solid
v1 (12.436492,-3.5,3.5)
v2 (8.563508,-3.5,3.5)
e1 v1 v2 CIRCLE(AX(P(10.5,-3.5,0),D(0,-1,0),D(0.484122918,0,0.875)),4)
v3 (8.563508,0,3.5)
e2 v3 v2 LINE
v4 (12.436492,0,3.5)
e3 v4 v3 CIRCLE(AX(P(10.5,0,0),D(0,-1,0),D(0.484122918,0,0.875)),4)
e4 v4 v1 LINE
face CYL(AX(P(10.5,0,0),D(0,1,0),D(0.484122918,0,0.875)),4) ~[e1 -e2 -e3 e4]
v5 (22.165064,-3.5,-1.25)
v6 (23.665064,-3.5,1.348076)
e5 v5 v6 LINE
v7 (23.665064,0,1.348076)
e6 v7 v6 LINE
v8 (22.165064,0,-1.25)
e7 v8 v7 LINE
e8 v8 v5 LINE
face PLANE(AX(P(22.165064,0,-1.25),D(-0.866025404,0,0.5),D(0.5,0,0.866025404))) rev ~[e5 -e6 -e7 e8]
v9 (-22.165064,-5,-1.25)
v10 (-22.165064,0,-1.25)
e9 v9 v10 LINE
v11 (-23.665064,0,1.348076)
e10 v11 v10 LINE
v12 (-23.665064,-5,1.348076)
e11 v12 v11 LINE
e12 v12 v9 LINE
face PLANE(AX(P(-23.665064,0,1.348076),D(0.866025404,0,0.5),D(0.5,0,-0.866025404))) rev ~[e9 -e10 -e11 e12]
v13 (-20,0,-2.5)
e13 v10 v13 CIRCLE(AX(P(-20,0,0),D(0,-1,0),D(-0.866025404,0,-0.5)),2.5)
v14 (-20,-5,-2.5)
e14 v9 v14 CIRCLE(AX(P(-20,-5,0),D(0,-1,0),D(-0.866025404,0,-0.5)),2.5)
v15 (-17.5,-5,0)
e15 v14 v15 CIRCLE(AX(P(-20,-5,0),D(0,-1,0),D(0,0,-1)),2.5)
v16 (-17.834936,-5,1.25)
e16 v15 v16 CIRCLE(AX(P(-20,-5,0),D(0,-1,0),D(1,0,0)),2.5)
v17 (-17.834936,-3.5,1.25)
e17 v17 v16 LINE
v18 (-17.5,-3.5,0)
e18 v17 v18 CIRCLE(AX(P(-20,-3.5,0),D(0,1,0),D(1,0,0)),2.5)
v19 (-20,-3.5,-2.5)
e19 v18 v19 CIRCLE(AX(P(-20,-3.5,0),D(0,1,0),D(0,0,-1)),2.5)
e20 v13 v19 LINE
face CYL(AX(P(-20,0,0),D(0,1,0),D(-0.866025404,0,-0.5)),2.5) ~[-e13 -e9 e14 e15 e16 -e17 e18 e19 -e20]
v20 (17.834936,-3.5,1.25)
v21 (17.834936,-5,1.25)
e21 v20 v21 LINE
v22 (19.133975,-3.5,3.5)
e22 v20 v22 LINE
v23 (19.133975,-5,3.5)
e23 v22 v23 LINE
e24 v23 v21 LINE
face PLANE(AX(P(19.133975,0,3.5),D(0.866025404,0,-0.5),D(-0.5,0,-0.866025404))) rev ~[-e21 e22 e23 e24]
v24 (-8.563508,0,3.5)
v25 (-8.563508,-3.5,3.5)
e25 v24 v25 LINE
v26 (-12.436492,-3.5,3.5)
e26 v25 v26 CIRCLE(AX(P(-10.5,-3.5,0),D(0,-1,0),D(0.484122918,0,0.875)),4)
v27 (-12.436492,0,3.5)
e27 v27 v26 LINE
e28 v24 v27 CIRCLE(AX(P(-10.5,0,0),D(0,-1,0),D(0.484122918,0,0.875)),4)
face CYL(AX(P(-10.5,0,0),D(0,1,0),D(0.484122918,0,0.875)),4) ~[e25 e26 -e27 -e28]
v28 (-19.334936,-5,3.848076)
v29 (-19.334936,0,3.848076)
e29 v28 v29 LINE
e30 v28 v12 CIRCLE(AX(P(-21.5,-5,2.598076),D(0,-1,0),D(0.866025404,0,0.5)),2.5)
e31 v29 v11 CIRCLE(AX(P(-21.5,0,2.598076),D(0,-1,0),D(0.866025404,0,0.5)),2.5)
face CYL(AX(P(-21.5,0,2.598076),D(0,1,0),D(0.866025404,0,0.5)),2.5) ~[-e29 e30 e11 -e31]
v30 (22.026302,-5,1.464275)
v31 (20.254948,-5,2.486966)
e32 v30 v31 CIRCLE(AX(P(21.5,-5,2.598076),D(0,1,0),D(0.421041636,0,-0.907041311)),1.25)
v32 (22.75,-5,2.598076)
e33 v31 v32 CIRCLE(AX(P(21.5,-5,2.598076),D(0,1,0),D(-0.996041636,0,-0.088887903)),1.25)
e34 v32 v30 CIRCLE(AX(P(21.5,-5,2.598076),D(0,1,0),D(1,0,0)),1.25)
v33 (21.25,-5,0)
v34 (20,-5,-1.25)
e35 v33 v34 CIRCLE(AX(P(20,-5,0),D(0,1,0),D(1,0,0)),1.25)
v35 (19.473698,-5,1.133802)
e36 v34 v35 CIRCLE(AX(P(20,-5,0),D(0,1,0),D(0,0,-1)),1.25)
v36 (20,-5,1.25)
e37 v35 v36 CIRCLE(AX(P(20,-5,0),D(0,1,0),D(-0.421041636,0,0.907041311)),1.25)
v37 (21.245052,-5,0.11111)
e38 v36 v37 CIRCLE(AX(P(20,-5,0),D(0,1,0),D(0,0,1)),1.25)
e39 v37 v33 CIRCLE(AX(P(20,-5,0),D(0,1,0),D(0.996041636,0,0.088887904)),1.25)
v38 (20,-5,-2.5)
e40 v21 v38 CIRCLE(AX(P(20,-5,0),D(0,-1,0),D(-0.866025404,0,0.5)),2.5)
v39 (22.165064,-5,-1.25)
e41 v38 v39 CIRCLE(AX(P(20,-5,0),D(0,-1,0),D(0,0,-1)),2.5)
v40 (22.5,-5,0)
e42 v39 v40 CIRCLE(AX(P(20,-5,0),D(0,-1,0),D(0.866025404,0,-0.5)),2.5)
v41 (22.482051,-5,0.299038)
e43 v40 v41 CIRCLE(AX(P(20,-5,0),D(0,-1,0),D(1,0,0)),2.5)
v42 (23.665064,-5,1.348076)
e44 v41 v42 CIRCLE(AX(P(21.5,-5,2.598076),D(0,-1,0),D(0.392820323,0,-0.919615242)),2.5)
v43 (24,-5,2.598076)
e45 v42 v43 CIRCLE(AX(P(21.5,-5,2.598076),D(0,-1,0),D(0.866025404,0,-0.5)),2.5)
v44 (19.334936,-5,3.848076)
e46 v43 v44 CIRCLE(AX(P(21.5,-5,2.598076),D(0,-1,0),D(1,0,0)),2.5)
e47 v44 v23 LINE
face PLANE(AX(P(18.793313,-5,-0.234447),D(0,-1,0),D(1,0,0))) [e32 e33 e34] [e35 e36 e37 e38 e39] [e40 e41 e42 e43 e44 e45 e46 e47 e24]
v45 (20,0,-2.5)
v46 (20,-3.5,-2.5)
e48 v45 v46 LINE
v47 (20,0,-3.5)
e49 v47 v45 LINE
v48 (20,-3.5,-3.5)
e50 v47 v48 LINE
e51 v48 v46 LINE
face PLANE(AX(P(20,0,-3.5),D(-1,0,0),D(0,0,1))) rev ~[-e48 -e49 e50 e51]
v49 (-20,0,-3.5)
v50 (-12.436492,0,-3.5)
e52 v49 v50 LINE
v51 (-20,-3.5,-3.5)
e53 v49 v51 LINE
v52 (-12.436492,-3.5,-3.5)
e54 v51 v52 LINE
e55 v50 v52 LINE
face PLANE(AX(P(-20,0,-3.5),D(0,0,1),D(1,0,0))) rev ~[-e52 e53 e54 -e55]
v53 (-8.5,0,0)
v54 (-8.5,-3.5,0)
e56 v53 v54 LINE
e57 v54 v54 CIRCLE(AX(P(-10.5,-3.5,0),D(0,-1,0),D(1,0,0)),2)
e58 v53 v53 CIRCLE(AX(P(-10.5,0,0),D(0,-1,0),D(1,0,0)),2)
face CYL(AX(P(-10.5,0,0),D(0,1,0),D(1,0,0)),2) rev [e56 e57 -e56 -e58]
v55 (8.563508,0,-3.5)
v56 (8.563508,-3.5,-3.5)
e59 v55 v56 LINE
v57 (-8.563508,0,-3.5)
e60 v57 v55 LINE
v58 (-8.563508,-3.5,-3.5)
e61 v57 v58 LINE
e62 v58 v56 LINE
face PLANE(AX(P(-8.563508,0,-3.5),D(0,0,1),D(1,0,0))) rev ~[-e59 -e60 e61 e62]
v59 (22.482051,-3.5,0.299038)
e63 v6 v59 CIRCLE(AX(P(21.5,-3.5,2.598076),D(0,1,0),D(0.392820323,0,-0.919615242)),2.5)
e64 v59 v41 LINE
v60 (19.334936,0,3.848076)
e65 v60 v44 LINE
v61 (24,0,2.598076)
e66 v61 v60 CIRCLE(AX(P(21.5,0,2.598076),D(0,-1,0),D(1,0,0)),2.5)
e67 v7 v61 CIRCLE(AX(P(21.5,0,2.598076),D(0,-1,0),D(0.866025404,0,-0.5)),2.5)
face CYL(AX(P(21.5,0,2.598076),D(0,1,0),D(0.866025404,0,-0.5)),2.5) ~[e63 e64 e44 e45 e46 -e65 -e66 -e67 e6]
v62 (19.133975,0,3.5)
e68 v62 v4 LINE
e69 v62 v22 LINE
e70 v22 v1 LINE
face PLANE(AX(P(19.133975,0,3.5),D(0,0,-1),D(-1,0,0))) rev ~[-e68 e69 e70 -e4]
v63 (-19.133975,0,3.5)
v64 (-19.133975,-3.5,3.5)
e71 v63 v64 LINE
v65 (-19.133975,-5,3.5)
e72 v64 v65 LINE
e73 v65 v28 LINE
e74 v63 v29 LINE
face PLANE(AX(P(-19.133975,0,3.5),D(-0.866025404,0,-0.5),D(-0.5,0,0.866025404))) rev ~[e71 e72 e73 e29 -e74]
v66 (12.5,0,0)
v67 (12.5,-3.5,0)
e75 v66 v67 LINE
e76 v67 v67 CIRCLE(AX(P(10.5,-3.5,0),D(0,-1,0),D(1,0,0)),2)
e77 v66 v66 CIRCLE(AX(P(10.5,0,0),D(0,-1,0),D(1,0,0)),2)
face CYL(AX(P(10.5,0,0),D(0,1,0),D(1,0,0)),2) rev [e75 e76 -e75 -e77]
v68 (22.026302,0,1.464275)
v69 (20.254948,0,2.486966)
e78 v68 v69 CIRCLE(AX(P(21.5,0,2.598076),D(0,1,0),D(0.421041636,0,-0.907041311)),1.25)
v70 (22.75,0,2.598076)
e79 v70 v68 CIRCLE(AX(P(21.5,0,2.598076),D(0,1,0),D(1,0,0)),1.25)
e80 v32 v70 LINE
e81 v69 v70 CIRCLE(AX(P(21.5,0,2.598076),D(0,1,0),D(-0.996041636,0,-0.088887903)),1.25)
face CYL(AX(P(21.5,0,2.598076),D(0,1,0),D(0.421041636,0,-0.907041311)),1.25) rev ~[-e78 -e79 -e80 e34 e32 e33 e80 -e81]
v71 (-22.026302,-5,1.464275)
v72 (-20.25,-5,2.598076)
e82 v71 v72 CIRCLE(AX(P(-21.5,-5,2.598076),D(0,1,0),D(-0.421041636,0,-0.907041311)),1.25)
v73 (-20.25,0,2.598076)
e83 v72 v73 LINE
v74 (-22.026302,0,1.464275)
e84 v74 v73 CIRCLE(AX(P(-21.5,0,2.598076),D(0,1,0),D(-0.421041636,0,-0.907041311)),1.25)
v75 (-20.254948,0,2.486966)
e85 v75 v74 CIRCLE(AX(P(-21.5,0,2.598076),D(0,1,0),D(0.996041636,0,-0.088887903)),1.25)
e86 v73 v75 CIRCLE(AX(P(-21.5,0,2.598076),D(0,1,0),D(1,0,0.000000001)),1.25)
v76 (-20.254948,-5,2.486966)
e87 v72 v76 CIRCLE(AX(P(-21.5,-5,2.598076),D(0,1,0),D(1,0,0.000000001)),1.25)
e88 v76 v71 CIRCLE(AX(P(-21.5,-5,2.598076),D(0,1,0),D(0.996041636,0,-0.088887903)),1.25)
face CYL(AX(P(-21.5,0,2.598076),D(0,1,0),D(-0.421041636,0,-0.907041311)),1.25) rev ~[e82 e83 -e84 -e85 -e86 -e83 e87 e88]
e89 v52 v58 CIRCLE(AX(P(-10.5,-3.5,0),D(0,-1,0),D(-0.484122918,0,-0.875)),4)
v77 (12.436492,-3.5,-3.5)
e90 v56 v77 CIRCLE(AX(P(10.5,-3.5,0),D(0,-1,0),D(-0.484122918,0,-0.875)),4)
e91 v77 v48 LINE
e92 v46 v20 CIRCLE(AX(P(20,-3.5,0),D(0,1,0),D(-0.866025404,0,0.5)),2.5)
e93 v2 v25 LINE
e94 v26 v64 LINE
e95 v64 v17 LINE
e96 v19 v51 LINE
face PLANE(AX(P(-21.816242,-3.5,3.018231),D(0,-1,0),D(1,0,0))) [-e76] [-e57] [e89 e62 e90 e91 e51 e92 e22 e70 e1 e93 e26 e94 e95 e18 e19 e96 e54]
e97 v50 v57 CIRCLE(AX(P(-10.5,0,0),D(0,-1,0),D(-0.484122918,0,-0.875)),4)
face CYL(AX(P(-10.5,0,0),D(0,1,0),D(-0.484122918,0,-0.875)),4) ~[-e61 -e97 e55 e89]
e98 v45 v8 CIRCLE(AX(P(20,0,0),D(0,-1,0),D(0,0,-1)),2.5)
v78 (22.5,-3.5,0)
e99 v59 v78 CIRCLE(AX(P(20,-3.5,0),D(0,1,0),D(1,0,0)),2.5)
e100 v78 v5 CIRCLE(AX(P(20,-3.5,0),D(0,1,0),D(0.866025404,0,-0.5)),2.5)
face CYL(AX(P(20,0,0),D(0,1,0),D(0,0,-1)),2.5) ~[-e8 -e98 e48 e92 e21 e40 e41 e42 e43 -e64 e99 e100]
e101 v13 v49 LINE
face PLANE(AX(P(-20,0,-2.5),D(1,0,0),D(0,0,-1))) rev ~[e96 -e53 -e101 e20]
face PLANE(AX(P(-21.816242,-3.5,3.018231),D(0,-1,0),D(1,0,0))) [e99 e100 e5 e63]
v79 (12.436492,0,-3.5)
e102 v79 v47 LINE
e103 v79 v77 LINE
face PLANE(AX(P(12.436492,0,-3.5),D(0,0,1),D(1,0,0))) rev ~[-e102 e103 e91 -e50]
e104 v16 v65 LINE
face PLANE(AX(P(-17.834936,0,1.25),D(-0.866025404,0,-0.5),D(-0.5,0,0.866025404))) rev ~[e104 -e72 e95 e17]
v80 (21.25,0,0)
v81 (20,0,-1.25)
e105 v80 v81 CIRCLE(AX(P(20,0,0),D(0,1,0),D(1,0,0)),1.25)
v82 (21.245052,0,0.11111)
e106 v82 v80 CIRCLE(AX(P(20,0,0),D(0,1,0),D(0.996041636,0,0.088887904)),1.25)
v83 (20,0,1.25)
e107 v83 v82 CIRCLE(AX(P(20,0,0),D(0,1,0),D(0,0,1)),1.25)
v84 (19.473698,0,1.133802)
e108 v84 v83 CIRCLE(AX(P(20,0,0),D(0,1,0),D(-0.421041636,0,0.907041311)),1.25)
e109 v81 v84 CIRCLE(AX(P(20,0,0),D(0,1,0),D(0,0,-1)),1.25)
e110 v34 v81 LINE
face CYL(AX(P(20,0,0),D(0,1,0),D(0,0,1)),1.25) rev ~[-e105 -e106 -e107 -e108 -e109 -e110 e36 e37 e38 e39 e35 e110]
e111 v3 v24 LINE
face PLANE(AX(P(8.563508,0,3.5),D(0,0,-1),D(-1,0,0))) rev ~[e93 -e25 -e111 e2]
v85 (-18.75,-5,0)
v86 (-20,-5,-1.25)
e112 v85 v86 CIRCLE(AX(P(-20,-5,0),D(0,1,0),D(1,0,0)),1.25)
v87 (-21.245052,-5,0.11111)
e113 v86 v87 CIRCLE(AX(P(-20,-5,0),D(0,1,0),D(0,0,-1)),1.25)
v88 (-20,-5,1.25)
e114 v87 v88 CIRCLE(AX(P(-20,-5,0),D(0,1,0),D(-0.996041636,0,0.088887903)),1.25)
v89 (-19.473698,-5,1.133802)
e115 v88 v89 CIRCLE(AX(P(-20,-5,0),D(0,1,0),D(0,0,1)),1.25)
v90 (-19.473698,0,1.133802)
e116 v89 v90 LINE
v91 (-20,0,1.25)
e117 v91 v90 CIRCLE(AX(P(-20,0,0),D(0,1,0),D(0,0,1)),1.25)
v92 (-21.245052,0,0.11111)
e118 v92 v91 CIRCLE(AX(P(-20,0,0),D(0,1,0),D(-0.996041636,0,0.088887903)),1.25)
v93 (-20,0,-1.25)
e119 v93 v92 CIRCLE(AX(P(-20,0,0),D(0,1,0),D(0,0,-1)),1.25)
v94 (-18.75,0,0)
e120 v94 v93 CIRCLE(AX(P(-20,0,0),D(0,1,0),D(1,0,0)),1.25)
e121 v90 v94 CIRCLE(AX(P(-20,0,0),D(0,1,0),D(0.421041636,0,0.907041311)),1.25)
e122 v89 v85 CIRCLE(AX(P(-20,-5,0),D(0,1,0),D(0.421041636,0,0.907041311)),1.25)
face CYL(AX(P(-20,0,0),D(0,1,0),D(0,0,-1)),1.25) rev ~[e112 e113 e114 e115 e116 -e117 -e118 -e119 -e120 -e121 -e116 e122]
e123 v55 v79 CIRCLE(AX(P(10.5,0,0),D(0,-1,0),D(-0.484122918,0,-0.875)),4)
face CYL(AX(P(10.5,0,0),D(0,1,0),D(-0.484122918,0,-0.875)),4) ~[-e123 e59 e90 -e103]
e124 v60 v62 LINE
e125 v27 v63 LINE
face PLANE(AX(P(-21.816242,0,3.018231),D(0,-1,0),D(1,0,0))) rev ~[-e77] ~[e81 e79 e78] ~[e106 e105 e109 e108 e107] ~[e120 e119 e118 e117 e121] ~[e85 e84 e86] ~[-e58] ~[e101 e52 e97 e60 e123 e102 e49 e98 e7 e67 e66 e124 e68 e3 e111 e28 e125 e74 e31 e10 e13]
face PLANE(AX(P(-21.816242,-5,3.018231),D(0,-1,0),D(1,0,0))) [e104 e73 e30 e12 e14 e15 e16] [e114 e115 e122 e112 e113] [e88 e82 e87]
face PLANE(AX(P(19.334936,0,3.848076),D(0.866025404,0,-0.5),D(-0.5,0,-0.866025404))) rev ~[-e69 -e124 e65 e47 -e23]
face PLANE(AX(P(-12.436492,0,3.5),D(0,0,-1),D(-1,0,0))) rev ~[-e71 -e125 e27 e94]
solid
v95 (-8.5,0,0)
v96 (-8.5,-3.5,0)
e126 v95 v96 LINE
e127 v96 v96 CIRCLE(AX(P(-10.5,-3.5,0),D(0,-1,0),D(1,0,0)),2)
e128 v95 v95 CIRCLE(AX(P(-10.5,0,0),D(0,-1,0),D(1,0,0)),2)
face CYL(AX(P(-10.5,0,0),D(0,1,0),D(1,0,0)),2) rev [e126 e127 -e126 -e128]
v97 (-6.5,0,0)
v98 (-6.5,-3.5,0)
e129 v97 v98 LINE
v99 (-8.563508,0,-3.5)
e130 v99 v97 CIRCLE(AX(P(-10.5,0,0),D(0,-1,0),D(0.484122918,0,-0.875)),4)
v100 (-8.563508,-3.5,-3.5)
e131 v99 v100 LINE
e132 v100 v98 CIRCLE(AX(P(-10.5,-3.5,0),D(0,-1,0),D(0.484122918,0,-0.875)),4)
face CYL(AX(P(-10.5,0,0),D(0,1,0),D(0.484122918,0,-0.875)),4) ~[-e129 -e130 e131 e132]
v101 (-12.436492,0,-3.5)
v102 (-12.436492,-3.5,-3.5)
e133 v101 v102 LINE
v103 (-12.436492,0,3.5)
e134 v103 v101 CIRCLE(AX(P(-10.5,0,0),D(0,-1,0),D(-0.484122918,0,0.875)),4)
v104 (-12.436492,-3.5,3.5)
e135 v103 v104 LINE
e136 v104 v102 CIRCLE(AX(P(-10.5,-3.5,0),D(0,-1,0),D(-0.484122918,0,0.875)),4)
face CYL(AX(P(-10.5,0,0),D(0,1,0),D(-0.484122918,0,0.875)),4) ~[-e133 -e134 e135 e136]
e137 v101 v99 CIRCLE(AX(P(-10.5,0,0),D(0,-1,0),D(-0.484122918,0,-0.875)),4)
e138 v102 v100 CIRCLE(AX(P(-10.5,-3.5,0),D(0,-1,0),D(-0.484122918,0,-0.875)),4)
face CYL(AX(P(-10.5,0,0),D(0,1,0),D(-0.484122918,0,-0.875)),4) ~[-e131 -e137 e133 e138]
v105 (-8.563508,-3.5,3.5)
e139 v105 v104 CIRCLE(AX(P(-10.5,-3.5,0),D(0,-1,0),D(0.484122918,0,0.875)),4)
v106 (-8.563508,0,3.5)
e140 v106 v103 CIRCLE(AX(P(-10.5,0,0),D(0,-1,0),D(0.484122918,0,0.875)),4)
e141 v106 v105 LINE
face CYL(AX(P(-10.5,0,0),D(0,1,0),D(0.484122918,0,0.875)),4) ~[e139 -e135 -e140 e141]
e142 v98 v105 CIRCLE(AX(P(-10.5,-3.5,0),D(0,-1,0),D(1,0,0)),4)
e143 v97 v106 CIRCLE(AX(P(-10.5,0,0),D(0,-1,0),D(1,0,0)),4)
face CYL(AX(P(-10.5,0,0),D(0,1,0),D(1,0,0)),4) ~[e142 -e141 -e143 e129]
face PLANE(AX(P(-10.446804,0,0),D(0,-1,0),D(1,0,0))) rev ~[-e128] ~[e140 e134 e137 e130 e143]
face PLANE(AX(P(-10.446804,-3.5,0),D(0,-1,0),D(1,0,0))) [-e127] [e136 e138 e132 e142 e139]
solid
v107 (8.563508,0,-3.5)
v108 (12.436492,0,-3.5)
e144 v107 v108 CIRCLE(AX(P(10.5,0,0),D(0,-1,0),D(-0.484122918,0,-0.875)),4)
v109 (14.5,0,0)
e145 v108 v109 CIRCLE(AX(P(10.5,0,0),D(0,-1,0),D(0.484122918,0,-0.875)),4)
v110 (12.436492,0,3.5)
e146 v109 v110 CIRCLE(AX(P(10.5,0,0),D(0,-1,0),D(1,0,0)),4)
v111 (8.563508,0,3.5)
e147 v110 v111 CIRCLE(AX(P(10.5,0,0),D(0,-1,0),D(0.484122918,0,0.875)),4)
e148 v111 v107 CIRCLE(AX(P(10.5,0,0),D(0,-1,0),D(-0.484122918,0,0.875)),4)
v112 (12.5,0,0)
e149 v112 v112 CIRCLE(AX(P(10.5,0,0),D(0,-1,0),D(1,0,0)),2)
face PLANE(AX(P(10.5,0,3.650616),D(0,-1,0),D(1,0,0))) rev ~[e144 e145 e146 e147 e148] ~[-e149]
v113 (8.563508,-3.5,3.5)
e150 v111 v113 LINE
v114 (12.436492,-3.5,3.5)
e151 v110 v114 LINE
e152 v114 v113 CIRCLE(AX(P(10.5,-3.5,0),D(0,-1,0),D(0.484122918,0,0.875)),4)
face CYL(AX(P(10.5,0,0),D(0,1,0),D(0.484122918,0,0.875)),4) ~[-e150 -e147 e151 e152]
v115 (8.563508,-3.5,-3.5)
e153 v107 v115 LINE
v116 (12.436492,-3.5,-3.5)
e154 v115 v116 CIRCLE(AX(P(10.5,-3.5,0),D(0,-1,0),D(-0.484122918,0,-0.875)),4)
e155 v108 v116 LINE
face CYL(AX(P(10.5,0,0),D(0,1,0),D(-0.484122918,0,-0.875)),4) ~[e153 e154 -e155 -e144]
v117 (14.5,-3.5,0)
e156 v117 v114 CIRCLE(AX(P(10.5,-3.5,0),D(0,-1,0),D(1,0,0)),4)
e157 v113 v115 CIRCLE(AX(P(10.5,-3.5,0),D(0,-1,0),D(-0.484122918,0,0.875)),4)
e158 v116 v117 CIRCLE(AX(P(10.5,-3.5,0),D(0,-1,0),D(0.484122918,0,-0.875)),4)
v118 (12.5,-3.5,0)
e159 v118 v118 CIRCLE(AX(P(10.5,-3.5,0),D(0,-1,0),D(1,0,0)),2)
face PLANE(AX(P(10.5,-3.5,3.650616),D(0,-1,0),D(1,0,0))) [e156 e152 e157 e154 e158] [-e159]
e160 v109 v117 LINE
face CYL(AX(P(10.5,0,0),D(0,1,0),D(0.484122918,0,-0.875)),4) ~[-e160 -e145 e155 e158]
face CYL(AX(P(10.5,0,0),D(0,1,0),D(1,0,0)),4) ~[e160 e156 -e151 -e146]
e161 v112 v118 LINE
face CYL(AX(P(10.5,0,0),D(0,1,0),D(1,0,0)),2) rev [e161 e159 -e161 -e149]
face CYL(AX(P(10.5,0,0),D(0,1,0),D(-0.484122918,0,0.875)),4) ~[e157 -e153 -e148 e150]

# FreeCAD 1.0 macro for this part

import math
import FreeCAD as App
import Part
import Sketcher
from FreeCAD import Vector
Q = App.Units.Quantity

doc = App.newDocument("Part")
body = doc.addObject("PartDesign::Body", "Body")

sketch1 = body.newObject("Sketcher::SketchObject", "Sketch")
sketch1.AttachmentSupport = (doc.getObject("XZ_Plane"), [""])
sketch1.MapMode = "FlatFace"
sketch1.addGeometry([
    Part.ArcOfCircle(Part.Circle(Vector(21.5, 2.6, 0), Vector(0, 0, 1), 2.5), math.radians(0), math.radians(150)),
    Part.LineSegment(Vector(19.33, 3.85, 0), Vector(19.13, 3.5, 0)),
    Part.LineSegment(Vector(19.13, 3.5, 0), Vector(12.44, 3.5, 0)),
    Part.ArcOfCircle(Part.Circle(Vector(10.5, 0, 0), Vector(0, 0, 1), 4), math.radians(61), math.radians(119)),
    Part.LineSegment(Vector(8.56, 3.5, 0), Vector(-8.56, 3.5, 0)),
    Part.ArcOfCircle(Part.Circle(Vector(-10.5, 0, 0), Vector(0, 0, 1), 4), math.radians(61), math.radians(119)),
    Part.LineSegment(Vector(-12.44, 3.5, 0), Vector(-19.13, 3.5, 0)),
    Part.LineSegment(Vector(-19.13, 3.5, 0), Vector(-19.33, 3.85, 0)),
    Part.ArcOfCircle(Part.Circle(Vector(-21.5, 2.6, 0), Vector(0, 0, 1), 2.5), math.radians(30), math.radians(210)),
    Part.LineSegment(Vector(-23.67, 1.35, 0), Vector(-22.17, -1.25, 0)),
    Part.ArcOfCircle(Part.Circle(Vector(-20, 0, 0), Vector(0, 0, 1), 2.5), math.radians(-150), math.radians(-90)),
    Part.LineSegment(Vector(-20, -2.5, 0), Vector(-20, -3.5, 0)),
    Part.LineSegment(Vector(-20, -3.5, 0), Vector(-12.44, -3.5, 0)),
    Part.ArcOfCircle(Part.Circle(Vector(-10.5, 0, 0), Vector(0, 0, 1), 4), math.radians(-119), math.radians(-61)),
    Part.LineSegment(Vector(-8.56, -3.5, 0), Vector(8.56, -3.5, 0)),
    Part.ArcOfCircle(Part.Circle(Vector(10.5, 0, 0), Vector(0, 0, 1), 4), math.radians(-119), math.radians(-61)),
    Part.LineSegment(Vector(12.44, -3.5, 0), Vector(20, -3.5, 0)),
    Part.LineSegment(Vector(20, -3.5, 0), Vector(20, -2.5, 0)),
    Part.ArcOfCircle(Part.Circle(Vector(20, 0, 0), Vector(0, 0, 1), 2.5), math.radians(-90), math.radians(-30)),
    Part.LineSegment(Vector(22.17, -1.25, 0), Vector(23.67, 1.35, 0)),
    Part.ArcOfCircle(Part.Circle(Vector(21.5, 2.6, 0), Vector(0, 0, 1), 2.5), math.radians(-30), math.radians(0)),
    Part.ArcOfCircle(Part.Circle(Vector(-20, 0, 0), Vector(0, 0, 1), 1.25), math.radians(175), math.radians(270)),
    Part.ArcOfCircle(Part.Circle(Vector(-20, 0, 0), Vector(0, 0, 1), 1.25), math.radians(90), math.radians(175)),
    Part.ArcOfCircle(Part.Circle(Vector(-20, 0, 0), Vector(0, 0, 1), 1.25), math.radians(65), math.radians(90)),
    Part.ArcOfCircle(Part.Circle(Vector(-20, 0, 0), Vector(0, 0, 1), 1.25), math.radians(0), math.radians(65)),
    Part.ArcOfCircle(Part.Circle(Vector(-20, 0, 0), Vector(0, 0, 1), 1.25), math.radians(-90), math.radians(0)),
    Part.Circle(Vector(-10.5, 0, 0), Vector(0, 0, 1), 2),
    Part.Circle(Vector(10.5, 0, 0), Vector(0, 0, 1), 2),
    Part.ArcOfCircle(Part.Circle(Vector(20, 0, 0), Vector(0, 0, 1), 1.25), math.radians(5), math.radians(90)),
    Part.ArcOfCircle(Part.Circle(Vector(20, 0, 0), Vector(0, 0, 1), 1.25), math.radians(0), math.radians(5.1)),
    Part.ArcOfCircle(Part.Circle(Vector(20, 0, 0), Vector(0, 0, 1), 1.25), math.radians(-90), math.radians(0)),
    Part.ArcOfCircle(Part.Circle(Vector(20, 0, 0), Vector(0, 0, 1), 1.25), math.radians(115), math.radians(270)),
    Part.ArcOfCircle(Part.Circle(Vector(20, 0, 0), Vector(0, 0, 1), 1.25), math.radians(90), math.radians(115)),
    Part.ArcOfCircle(Part.Circle(Vector(-21.5, 2.6, 0), Vector(0, 0, 1), 1.25), math.radians(0), math.radians(245)),
    Part.ArcOfCircle(Part.Circle(Vector(-21.5, 2.6, 0), Vector(0, 0, 1), 1.25), math.radians(-5.1), math.radians(0)),
    Part.ArcOfCircle(Part.Circle(Vector(-21.5, 2.6, 0), Vector(0, 0, 1), 1.25), math.radians(-115), math.radians(-5)),
    Part.ArcOfCircle(Part.Circle(Vector(21.5, 2.6, 0), Vector(0, 0, 1), 1.25), math.radians(-175), math.radians(-65)),
    Part.ArcOfCircle(Part.Circle(Vector(21.5, 2.6, 0), Vector(0, 0, 1), 1.25), math.radians(0), math.radians(185)),
    Part.ArcOfCircle(Part.Circle(Vector(21.5, 2.6, 0), Vector(0, 0, 1), 1.25), math.radians(-65), math.radians(0)),
], False)
sketch1.addConstraint([
    Sketcher.Constraint("Tangent", 0, 2, 1, 1),
    Sketcher.Constraint("Coincident", 1, 2, 2, 1),
    Sketcher.Constraint("Coincident", 2, 2, 3, 1),
    Sketcher.Constraint("Coincident", 3, 2, 4, 1),
    Sketcher.Constraint("Coincident", 4, 2, 5, 1),
    Sketcher.Constraint("Coincident", 5, 2, 6, 1),
    Sketcher.Constraint("Coincident", 6, 2, 7, 1),
    Sketcher.Constraint("Tangent", 7, 2, 8, 1),
    Sketcher.Constraint("Tangent", 8, 2, 9, 1),
    Sketcher.Constraint("Tangent", 9, 2, 10, 1),
    Sketcher.Constraint("Coincident", 10, 2, 11, 1),
    Sketcher.Constraint("Coincident", 11, 2, 12, 1),
    Sketcher.Constraint("Coincident", 12, 2, 13, 1),
    Sketcher.Constraint("Coincident", 13, 2, 14, 1),
    Sketcher.Constraint("Coincident", 14, 2, 15, 1),
    Sketcher.Constraint("Coincident", 15, 2, 16, 1),
    Sketcher.Constraint("Coincident", 16, 2, 17, 1),
    Sketcher.Constraint("Coincident", 17, 2, 18, 1),
    Sketcher.Constraint("Tangent", 18, 2, 19, 1),
    Sketcher.Constraint("Tangent", 19, 2, 20, 1),
    Sketcher.Constraint("Tangent", 20, 2, 0, 1),
    Sketcher.Constraint("Tangent", 21, 1, 22, 2),
    Sketcher.Constraint("Tangent", 22, 1, 23, 2),
    Sketcher.Constraint("Tangent", 23, 1, 24, 2),
    Sketcher.Constraint("Tangent", 24, 1, 25, 2),
    Sketcher.Constraint("Tangent", 25, 1, 21, 2),
    Sketcher.Constraint("Tangent", 28, 1, 29, 2),
    Sketcher.Constraint("Tangent", 29, 1, 30, 2),
    Sketcher.Constraint("Tangent", 30, 1, 31, 2),
    Sketcher.Constraint("Tangent", 31, 1, 32, 2),
    Sketcher.Constraint("Tangent", 32, 1, 28, 2),
    Sketcher.Constraint("Tangent", 33, 1, 34, 2),
    Sketcher.Constraint("Tangent", 34, 1, 35, 2),
    Sketcher.Constraint("Tangent", 35, 1, 33, 2),
    Sketcher.Constraint("Tangent", 36, 1, 37, 2),
    Sketcher.Constraint("Tangent", 37, 1, 38, 2),
    Sketcher.Constraint("Tangent", 38, 1, 36, 2),
    Sketcher.Constraint("Horizontal", 2),
    Sketcher.Constraint("Horizontal", 4),
    Sketcher.Constraint("Horizontal", 6),
    Sketcher.Constraint("Vertical", 11),
    Sketcher.Constraint("Horizontal", 12),
    Sketcher.Constraint("Horizontal", 14),
    Sketcher.Constraint("Horizontal", 16),
    Sketcher.Constraint("Vertical", 17),
    Sketcher.Constraint("Coincident", 13, 3, 5, 3),
    Sketcher.Constraint("Coincident", 15, 3, 3, 3),
    Sketcher.Constraint("Coincident", 21, 3, 10, 3),
    Sketcher.Constraint("Coincident", 23, 3, 10, 3),
    Sketcher.Constraint("Coincident", 26, 3, 5, 3),
    Sketcher.Constraint("Coincident", 27, 3, 3, 3),
    Sketcher.Constraint("Coincident", 28, 3, 18, 3),
    Sketcher.Constraint("Coincident", 30, 3, 18, 3),
    Sketcher.Constraint("Coincident", 33, 3, 8, 3),
    Sketcher.Constraint("Coincident", 36, 3, 0, 3),
    Sketcher.Constraint("Equal", 3, 5),
    Sketcher.Constraint("Equal", 0, 8),
    Sketcher.Constraint("Equal", 8, 10),
    Sketcher.Constraint("Equal", 5, 13),
    Sketcher.Constraint("Equal", 13, 15),
    Sketcher.Constraint("Equal", 10, 18),
    Sketcher.Constraint("Equal", 18, 20),
    Sketcher.Constraint("Equal", 26, 27),
    Sketcher.Constraint("Equal", 25, 28),
    Sketcher.Constraint("Equal", 32, 33),
    Sketcher.Constraint("Equal", 35, 36),
    Sketcher.Constraint("Symmetric", 3, 3, 5, 3, -1, 1),
    Sketcher.Constraint("Symmetric", 10, 3, 18, 3, -1, 1),
    Sketcher.Constraint("Symmetric", 0, 3, 8, 3, -2),
    Sketcher.Constraint("Symmetric", 2, 2, 5, 2, -2),
    Sketcher.Constraint("Symmetric", 11, 2, 16, 2, -2),
    Sketcher.Constraint("Symmetric", 21, 1, 28, 1, -2),
    Sketcher.Constraint("PointOnObject", 24, 1, -1),
    Sketcher.Constraint("PointOnObject", 29, 1, -1),
    Sketcher.Constraint("Parallel", 7, 9),
    Sketcher.Constraint("Parallel", 1, 19),
    Sketcher.Constraint("Horizontal", 2, 2, 3, 2),
    Sketcher.Constraint("Horizontal", 12, 2, 13, 2),
    Sketcher.Constraint("Horizontal", 38, 3, 20, 2),
    Sketcher.Constraint("Horizontal", 18, 2, 25, 1),
    Sketcher.Constraint("Horizontal", 23, 1, 31, 1),
    Sketcher.Constraint("Horizontal", 20, 2, 33, 1),
    Sketcher.Constraint("Horizontal", 34, 1, 36, 1),
    Sketcher.Constraint("Horizontal", 33, 1, 37, 1),
    Sketcher.Constraint("Horizontal", 35, 1, 38, 1),
    Sketcher.Constraint("Vertical", 25, 3, 10, 2),
    Sketcher.Constraint("Vertical", 5, 2, 12, 2),
    Sketcher.Constraint("Vertical", 11, 2, 22, 1),
    Sketcher.Constraint("Vertical", 22, 1, 25, 1),
    Sketcher.Constraint("Vertical", 17, 2, 30, 1),
    Sketcher.Constraint("Vertical", 30, 1, 32, 1),
    Sketcher.Constraint("Diameter", 26, 4.0),
    Sketcher.Constraint("Radius", 3, 4.0),
    Sketcher.Constraint("Radius", 0, 2.5),
    Sketcher.Constraint("DistanceY", 11, 2, 11, 1, 1.0),
    Sketcher.Constraint("Angle", 1, Q("-120 deg")),
    Sketcher.Constraint("Distance", 9, 3.0),
    Sketcher.Constraint("DistanceX", 10, 3, -1, 1, 20.0),
    Sketcher.Constraint("DistanceX", -1, 1, 3, 3, 10.5),
    Sketcher.Constraint("DistanceY", -1, 1, 23, 1, 1.133802),
    Sketcher.Constraint("DistanceY", -1, 1, 21, 1, 0.11111),
    Sketcher.Constraint("DistanceX", 34, 1, -1, 1, 20.254948),
    Sketcher.Constraint("DistanceX", 35, 1, -1, 1, 22.026302),
])
pad1 = body.newObject("PartDesign::Pad", "Pad")
pad1.Profile = sketch1
pad1.Length = 3.5

sketch2 = body.newObject("Sketcher::SketchObject", "Sketch001")
sketch2.AttachmentSupport = (doc.getObject("XZ_Plane"), [""])
sketch2.MapMode = "FlatFace"
sketch2.addGeometry([
    Part.ArcOfCircle(Part.Circle(Vector(-21.5, 2.6, 0), Vector(0, 0, 1), 2.5), math.radians(30), math.radians(210)),
    Part.LineSegment(Vector(-23.67, 1.35, 0), Vector(-22.17, -1.25, 0)),
    Part.ArcOfCircle(Part.Circle(Vector(-20, 0, 0), Vector(0, 0, 1), 2.5), math.radians(-150), math.radians(-90)),
    Part.ArcOfCircle(Part.Circle(Vector(-20, 0, 0), Vector(0, 0, 1), 2.5), math.radians(-90), math.radians(0)),
    Part.ArcOfCircle(Part.Circle(Vector(-20, 0, 0), Vector(0, 0, 1), 2.5), math.radians(0), math.radians(30)),
    Part.LineSegment(Vector(-17.83, 1.25, 0), Vector(-19.13, 3.5, 0)),
    Part.LineSegment(Vector(-19.13, 3.5, 0), Vector(-19.33, 3.85, 0)),
    Part.ArcOfCircle(Part.Circle(Vector(-20, 0, 0), Vector(0, 0, 1), 1.25), math.radians(0), math.radians(65)),
    Part.ArcOfCircle(Part.Circle(Vector(-20, 0, 0), Vector(0, 0, 1), 1.25), math.radians(-90), math.radians(0)),
    Part.ArcOfCircle(Part.Circle(Vector(-20, 0, 0), Vector(0, 0, 1), 1.25), math.radians(175), math.radians(270)),
    Part.ArcOfCircle(Part.Circle(Vector(-20, 0, 0), Vector(0, 0, 1), 1.25), math.radians(90), math.radians(175)),
    Part.ArcOfCircle(Part.Circle(Vector(-20, 0, 0), Vector(0, 0, 1), 1.25), math.radians(65), math.radians(90)),
    Part.ArcOfCircle(Part.Circle(Vector(-21.5, 2.6, 0), Vector(0, 0, 1), 1.25), math.radians(0), math.radians(245)),
    Part.ArcOfCircle(Part.Circle(Vector(-21.5, 2.6, 0), Vector(0, 0, 1), 1.25), math.radians(-5.1), math.radians(0)),
    Part.ArcOfCircle(Part.Circle(Vector(-21.5, 2.6, 0), Vector(0, 0, 1), 1.25), math.radians(-115), math.radians(-5)),
    Part.LineSegment(Vector(19.13, 3.5, 0), Vector(17.83, 1.25, 0)),
    Part.ArcOfCircle(Part.Circle(Vector(20, 0, 0), Vector(0, 0, 1), 2.5), math.radians(150), math.radians(270)),
    Part.ArcOfCircle(Part.Circle(Vector(20, 0, 0), Vector(0, 0, 1), 2.5), math.radians(-90), math.radians(-30)),
    Part.ArcOfCircle(Part.Circle(Vector(20, 0, 0), Vector(0, 0, 1), 2.5), math.radians(-30), math.radians(0)),
    Part.ArcOfCircle(Part.Circle(Vector(20, 0, 0), Vector(0, 0, 1), 2.5), math.radians(0), math.radians(6.87)),
    Part.ArcOfCircle(Part.Circle(Vector(21.5, 2.6, 0), Vector(0, 0, 1), 2.5), math.radians(-67), math.radians(-30)),
    Part.ArcOfCircle(Part.Circle(Vector(21.5, 2.6, 0), Vector(0, 0, 1), 2.5), math.radians(-30), math.radians(0)),
    Part.ArcOfCircle(Part.Circle(Vector(21.5, 2.6, 0), Vector(0, 0, 1), 2.5), math.radians(0), math.radians(150)),
    Part.LineSegment(Vector(19.33, 3.85, 0), Vector(19.13, 3.5, 0)),
    Part.ArcOfCircle(Part.Circle(Vector(20, 0, 0), Vector(0, 0, 1), 1.25), math.radians(5), math.radians(90)),
    Part.ArcOfCircle(Part.Circle(Vector(20, 0, 0), Vector(0, 0, 1), 1.25), math.radians(0), math.radians(5.1)),
    Part.ArcOfCircle(Part.Circle(Vector(20, 0, 0), Vector(0, 0, 1), 1.25), math.radians(-90), math.radians(0)),
    Part.ArcOfCircle(Part.Circle(Vector(20, 0, 0), Vector(0, 0, 1), 1.25), math.radians(115), math.radians(270)),
    Part.ArcOfCircle(Part.Circle(Vector(20, 0, 0), Vector(0, 0, 1), 1.25), math.radians(90), math.radians(115)),
    Part.ArcOfCircle(Part.Circle(Vector(21.5, 2.6, 0), Vector(0, 0, 1), 1.25), math.radians(-175), math.radians(-65)),
    Part.ArcOfCircle(Part.Circle(Vector(21.5, 2.6, 0), Vector(0, 0, 1), 1.25), math.radians(0), math.radians(185)),
    Part.ArcOfCircle(Part.Circle(Vector(21.5, 2.6, 0), Vector(0, 0, 1), 1.25), math.radians(-65), math.radians(0)),
], False)
sketch2.addConstraint([
    Sketcher.Constraint("Tangent", 0, 2, 1, 1),
    Sketcher.Constraint("Tangent", 1, 2, 2, 1),
    Sketcher.Constraint("Tangent", 2, 2, 3, 1),
    Sketcher.Constraint("Tangent", 3, 2, 4, 1),
    Sketcher.Constraint("Tangent", 4, 2, 5, 1),
    Sketcher.Constraint("Coincident", 5, 2, 6, 1),
    Sketcher.Constraint("Tangent", 6, 2, 0, 1),
    Sketcher.Constraint("Tangent", 7, 1, 8, 2),
    Sketcher.Constraint("Tangent", 8, 1, 9, 2),
    Sketcher.Constraint("Tangent", 9, 1, 10, 2),
    Sketcher.Constraint("Tangent", 10, 1, 11, 2),
    Sketcher.Constraint("Tangent", 11, 1, 7, 2),
    Sketcher.Constraint("Tangent", 12, 1, 13, 2),
    Sketcher.Constraint("Tangent", 13, 1, 14, 2),
    Sketcher.Constraint("Tangent", 14, 1, 12, 2),
    Sketcher.Constraint("Tangent", 15, 2, 16, 1),
    Sketcher.Constraint("Tangent", 16, 2, 17, 1),
    Sketcher.Constraint("Tangent", 17, 2, 18, 1),
    Sketcher.Constraint("Tangent", 18, 2, 19, 1),
    Sketcher.Constraint("Coincident", 19, 2, 20, 1),
    Sketcher.Constraint("Tangent", 20, 2, 21, 1),
    Sketcher.Constraint("Tangent", 21, 2, 22, 1),
    Sketcher.Constraint("Tangent", 22, 2, 23, 1),
    Sketcher.Constraint("Coincident", 23, 2, 15, 1),
    Sketcher.Constraint("Tangent", 24, 1, 25, 2),
    Sketcher.Constraint("Tangent", 25, 1, 26, 2),
    Sketcher.Constraint("Tangent", 26, 1, 27, 2),
    Sketcher.Constraint("Tangent", 27, 1, 28, 2),
    Sketcher.Constraint("Tangent", 28, 1, 24, 2),
    Sketcher.Constraint("Tangent", 29, 1, 30, 2),
    Sketcher.Constraint("Tangent", 30, 1, 31, 2),
    Sketcher.Constraint("Tangent", 31, 1, 29, 2),
    Sketcher.Constraint("Coincident", 4, 3, 2, 3),
    Sketcher.Constraint("Coincident", 7, 3, 2, 3),
    Sketcher.Constraint("Coincident", 9, 3, 2, 3),
    Sketcher.Constraint("Coincident", 12, 3, 0, 3),
    Sketcher.Constraint("Coincident", 18, 3, 16, 3),
    Sketcher.Constraint("Coincident", 22, 3, 20, 3),
    Sketcher.Constraint("Coincident", 24, 3, 16, 3),
    Sketcher.Constraint("Coincident", 26, 3, 16, 3),
    Sketcher.Constraint("Coincident", 29, 3, 20, 3),
    Sketcher.Constraint("Equal", 0, 2),
    Sketcher.Constraint("Equal", 11, 12),
    Sketcher.Constraint("Equal", 4, 16),
    Sketcher.Constraint("Equal", 18, 19),
    Sketcher.Constraint("Equal", 19, 20),
    Sketcher.Constraint("Equal", 14, 24),
    Sketcher.Constraint("Equal", 28, 29),
    Sketcher.Constraint("Symmetric", 2, 3, 16, 3, -1, 1),
    Sketcher.Constraint("Symmetric", 0, 3, 20, 3, -2),
    Sketcher.Constraint("Symmetric", 4, 2, 15, 2, -2),
    Sketcher.Constraint("PointOnObject", 3, 2, -1),
    Sketcher.Constraint("PointOnObject", 7, 1, -1),
    Sketcher.Constraint("PointOnObject", 18, 2, -1),
    Sketcher.Constraint("PointOnObject", 25, 1, -1),
    Sketcher.Constraint("Parallel", 1, 5),
    Sketcher.Constraint("Horizontal", 1, 2, 8, 1),
    Sketcher.Constraint("Horizontal", 31, 3, 12, 1),
    Sketcher.Constraint("Horizontal", 8, 1, 17, 2),
    Sketcher.Constraint("Horizontal", 0, 2, 20, 2),
    Sketcher.Constraint("Horizontal", 12, 1, 21, 2),
    Sketcher.Constraint("Horizontal", 5, 2, 23, 2),
    Sketcher.Constraint("Horizontal", 9, 1, 24, 1),
    Sketcher.Constraint("Horizontal", 11, 1, 27, 1),
    Sketcher.Constraint("Horizontal", 13, 1, 29, 1),
    Sketcher.Constraint("Horizontal", 21, 2, 30, 1),
    Sketcher.Constraint("Horizontal", 14, 1, 31, 1),
    Sketcher.Constraint("Vertical", 11, 3, 2, 2),
    Sketcher.Constraint("Vertical", 2, 2, 8, 1),
    Sketcher.Constraint("Vertical", 8, 1, 10, 1),
    Sketcher.Constraint("Vertical", 28, 3, 16, 2),
    Sketcher.Constraint("Vertical", 16, 2, 26, 1),
    Sketcher.Constraint("Vertical", 26, 1, 28, 1),
    Sketcher.Constraint("Radius", 0, 2.5),
    Sketcher.Constraint("Angle", 1, Q("-60 deg")),
    Sketcher.Constraint("Distance", 1, 3.0),
    Sketcher.Constraint("DistanceX", 2, 3, -1, 1, 20.0),
    Sketcher.Constraint("DistanceY", -1, 1, 5, 2, 3.5),
    Sketcher.Constraint("DistanceY", -1, 1, 11, 1, 1.133802),
    Sketcher.Constraint("DistanceY", 14, 1, 0, 3, 1.133802),
    Sketcher.Constraint("DistanceY", -1, 1, 9, 1, 0.11111),
    Sketcher.Constraint("DistanceY", 13, 1, 12, 1, 0.11111),
])
pad2 = body.newObject("PartDesign::Pad", "Pad001")
pad2.Profile = sketch2
pad2.Length = 5
body2 = doc.addObject("PartDesign::Body", "Body001")

sketch3 = body2.newObject("Sketcher::SketchObject", "Sketch002")
sketch3.AttachmentSupport = (doc.getObject("XZ_Plane001"), [""])
sketch3.MapMode = "FlatFace"
sketch3.addGeometry([
    Part.ArcOfCircle(Part.Circle(Vector(-10.5, 0, 0), Vector(0, 0, 1), 4), math.radians(0), math.radians(61)),
    Part.ArcOfCircle(Part.Circle(Vector(-10.5, 0, 0), Vector(0, 0, 1), 4), math.radians(61), math.radians(119)),
    Part.ArcOfCircle(Part.Circle(Vector(-10.5, 0, 0), Vector(0, 0, 1), 4), math.radians(119), math.radians(241)),
    Part.ArcOfCircle(Part.Circle(Vector(-10.5, 0, 0), Vector(0, 0, 1), 4), math.radians(-119), math.radians(-61)),
    Part.ArcOfCircle(Part.Circle(Vector(-10.5, 0, 0), Vector(0, 0, 1), 4), math.radians(-61), math.radians(0)),
    Part.Circle(Vector(-10.5, 0, 0), Vector(0, 0, 1), 2),
], False)
sketch3.addConstraint([
    Sketcher.Constraint("Tangent", 0, 2, 1, 1),
    Sketcher.Constraint("Tangent", 1, 2, 2, 1),
    Sketcher.Constraint("Tangent", 2, 2, 3, 1),
    Sketcher.Constraint("Tangent", 3, 2, 4, 1),
    Sketcher.Constraint("Tangent", 4, 2, 0, 1),
    Sketcher.Constraint("Coincident", 2, 3, 0, 3),
    Sketcher.Constraint("Coincident", 5, 3, 0, 3),
    Sketcher.Constraint("Symmetric", 1, 2, 2, 2, -1),
    Sketcher.Constraint("PointOnObject", 4, 2, -1),
    Sketcher.Constraint("Horizontal", 0, 2, 1, 2),
    Sketcher.Constraint("Horizontal", 2, 2, 3, 2),
    Sketcher.Constraint("Diameter", 5, 4.0),
    Sketcher.Constraint("Radius", 0, 4.0),
    Sketcher.Constraint("DistanceX", 0, 3, -1, 1, 10.5),
    Sketcher.Constraint("DistanceY", -1, 1, 0, 2, 3.5),
])
pad3 = body2.newObject("PartDesign::Pad", "Pad002")
pad3.Profile = sketch3
pad3.Length = 3.5
body3 = doc.addObject("PartDesign::Body", "Body002")

sketch4 = body3.newObject("Sketcher::SketchObject", "Sketch003")
sketch4.AttachmentSupport = (doc.getObject("XZ_Plane002"), [""])
sketch4.MapMode = "FlatFace"
sketch4.addGeometry([
    Part.ArcOfCircle(Part.Circle(Vector(10.5, 0, 0), Vector(0, 0, 1), 4), math.radians(61), math.radians(119)),
    Part.ArcOfCircle(Part.Circle(Vector(10.5, 0, 0), Vector(0, 0, 1), 4), math.radians(119), math.radians(241)),
    Part.ArcOfCircle(Part.Circle(Vector(10.5, 0, 0), Vector(0, 0, 1), 4), math.radians(-119), math.radians(-61)),
    Part.ArcOfCircle(Part.Circle(Vector(10.5, 0, 0), Vector(0, 0, 1), 4), math.radians(-61), math.radians(0)),
    Part.ArcOfCircle(Part.Circle(Vector(10.5, 0, 0), Vector(0, 0, 1), 4), math.radians(0), math.radians(61)),
    Part.Circle(Vector(10.5, 0, 0), Vector(0, 0, 1), 2),
], False)
sketch4.addConstraint([
    Sketcher.Constraint("Tangent", 0, 2, 1, 1),
    Sketcher.Constraint("Tangent", 1, 2, 2, 1),
    Sketcher.Constraint("Tangent", 2, 2, 3, 1),
    Sketcher.Constraint("Tangent", 3, 2, 4, 1),
    Sketcher.Constraint("Tangent", 4, 2, 0, 1),
    Sketcher.Constraint("Coincident", 2, 3, 0, 3),
    Sketcher.Constraint("Coincident", 5, 3, 0, 3),
    Sketcher.Constraint("Symmetric", 0, 2, 1, 2, -1),
    Sketcher.Constraint("PointOnObject", 3, 2, -1),
    Sketcher.Constraint("Horizontal", 1, 2, 2, 2),
    Sketcher.Constraint("Horizontal", 0, 2, 4, 2),
    Sketcher.Constraint("Diameter", 5, 4.0),
    Sketcher.Constraint("Radius", 0, 4.0),
    Sketcher.Constraint("DistanceX", -1, 1, 0, 3, 10.5),
    Sketcher.Constraint("DistanceY", -1, 1, 0, 2, 3.5),
])
pad4 = body3.newObject("PartDesign::Pad", "Pad003")
pad4.Profile = sketch4
pad4.Length = 3.5

doc.recompute()
